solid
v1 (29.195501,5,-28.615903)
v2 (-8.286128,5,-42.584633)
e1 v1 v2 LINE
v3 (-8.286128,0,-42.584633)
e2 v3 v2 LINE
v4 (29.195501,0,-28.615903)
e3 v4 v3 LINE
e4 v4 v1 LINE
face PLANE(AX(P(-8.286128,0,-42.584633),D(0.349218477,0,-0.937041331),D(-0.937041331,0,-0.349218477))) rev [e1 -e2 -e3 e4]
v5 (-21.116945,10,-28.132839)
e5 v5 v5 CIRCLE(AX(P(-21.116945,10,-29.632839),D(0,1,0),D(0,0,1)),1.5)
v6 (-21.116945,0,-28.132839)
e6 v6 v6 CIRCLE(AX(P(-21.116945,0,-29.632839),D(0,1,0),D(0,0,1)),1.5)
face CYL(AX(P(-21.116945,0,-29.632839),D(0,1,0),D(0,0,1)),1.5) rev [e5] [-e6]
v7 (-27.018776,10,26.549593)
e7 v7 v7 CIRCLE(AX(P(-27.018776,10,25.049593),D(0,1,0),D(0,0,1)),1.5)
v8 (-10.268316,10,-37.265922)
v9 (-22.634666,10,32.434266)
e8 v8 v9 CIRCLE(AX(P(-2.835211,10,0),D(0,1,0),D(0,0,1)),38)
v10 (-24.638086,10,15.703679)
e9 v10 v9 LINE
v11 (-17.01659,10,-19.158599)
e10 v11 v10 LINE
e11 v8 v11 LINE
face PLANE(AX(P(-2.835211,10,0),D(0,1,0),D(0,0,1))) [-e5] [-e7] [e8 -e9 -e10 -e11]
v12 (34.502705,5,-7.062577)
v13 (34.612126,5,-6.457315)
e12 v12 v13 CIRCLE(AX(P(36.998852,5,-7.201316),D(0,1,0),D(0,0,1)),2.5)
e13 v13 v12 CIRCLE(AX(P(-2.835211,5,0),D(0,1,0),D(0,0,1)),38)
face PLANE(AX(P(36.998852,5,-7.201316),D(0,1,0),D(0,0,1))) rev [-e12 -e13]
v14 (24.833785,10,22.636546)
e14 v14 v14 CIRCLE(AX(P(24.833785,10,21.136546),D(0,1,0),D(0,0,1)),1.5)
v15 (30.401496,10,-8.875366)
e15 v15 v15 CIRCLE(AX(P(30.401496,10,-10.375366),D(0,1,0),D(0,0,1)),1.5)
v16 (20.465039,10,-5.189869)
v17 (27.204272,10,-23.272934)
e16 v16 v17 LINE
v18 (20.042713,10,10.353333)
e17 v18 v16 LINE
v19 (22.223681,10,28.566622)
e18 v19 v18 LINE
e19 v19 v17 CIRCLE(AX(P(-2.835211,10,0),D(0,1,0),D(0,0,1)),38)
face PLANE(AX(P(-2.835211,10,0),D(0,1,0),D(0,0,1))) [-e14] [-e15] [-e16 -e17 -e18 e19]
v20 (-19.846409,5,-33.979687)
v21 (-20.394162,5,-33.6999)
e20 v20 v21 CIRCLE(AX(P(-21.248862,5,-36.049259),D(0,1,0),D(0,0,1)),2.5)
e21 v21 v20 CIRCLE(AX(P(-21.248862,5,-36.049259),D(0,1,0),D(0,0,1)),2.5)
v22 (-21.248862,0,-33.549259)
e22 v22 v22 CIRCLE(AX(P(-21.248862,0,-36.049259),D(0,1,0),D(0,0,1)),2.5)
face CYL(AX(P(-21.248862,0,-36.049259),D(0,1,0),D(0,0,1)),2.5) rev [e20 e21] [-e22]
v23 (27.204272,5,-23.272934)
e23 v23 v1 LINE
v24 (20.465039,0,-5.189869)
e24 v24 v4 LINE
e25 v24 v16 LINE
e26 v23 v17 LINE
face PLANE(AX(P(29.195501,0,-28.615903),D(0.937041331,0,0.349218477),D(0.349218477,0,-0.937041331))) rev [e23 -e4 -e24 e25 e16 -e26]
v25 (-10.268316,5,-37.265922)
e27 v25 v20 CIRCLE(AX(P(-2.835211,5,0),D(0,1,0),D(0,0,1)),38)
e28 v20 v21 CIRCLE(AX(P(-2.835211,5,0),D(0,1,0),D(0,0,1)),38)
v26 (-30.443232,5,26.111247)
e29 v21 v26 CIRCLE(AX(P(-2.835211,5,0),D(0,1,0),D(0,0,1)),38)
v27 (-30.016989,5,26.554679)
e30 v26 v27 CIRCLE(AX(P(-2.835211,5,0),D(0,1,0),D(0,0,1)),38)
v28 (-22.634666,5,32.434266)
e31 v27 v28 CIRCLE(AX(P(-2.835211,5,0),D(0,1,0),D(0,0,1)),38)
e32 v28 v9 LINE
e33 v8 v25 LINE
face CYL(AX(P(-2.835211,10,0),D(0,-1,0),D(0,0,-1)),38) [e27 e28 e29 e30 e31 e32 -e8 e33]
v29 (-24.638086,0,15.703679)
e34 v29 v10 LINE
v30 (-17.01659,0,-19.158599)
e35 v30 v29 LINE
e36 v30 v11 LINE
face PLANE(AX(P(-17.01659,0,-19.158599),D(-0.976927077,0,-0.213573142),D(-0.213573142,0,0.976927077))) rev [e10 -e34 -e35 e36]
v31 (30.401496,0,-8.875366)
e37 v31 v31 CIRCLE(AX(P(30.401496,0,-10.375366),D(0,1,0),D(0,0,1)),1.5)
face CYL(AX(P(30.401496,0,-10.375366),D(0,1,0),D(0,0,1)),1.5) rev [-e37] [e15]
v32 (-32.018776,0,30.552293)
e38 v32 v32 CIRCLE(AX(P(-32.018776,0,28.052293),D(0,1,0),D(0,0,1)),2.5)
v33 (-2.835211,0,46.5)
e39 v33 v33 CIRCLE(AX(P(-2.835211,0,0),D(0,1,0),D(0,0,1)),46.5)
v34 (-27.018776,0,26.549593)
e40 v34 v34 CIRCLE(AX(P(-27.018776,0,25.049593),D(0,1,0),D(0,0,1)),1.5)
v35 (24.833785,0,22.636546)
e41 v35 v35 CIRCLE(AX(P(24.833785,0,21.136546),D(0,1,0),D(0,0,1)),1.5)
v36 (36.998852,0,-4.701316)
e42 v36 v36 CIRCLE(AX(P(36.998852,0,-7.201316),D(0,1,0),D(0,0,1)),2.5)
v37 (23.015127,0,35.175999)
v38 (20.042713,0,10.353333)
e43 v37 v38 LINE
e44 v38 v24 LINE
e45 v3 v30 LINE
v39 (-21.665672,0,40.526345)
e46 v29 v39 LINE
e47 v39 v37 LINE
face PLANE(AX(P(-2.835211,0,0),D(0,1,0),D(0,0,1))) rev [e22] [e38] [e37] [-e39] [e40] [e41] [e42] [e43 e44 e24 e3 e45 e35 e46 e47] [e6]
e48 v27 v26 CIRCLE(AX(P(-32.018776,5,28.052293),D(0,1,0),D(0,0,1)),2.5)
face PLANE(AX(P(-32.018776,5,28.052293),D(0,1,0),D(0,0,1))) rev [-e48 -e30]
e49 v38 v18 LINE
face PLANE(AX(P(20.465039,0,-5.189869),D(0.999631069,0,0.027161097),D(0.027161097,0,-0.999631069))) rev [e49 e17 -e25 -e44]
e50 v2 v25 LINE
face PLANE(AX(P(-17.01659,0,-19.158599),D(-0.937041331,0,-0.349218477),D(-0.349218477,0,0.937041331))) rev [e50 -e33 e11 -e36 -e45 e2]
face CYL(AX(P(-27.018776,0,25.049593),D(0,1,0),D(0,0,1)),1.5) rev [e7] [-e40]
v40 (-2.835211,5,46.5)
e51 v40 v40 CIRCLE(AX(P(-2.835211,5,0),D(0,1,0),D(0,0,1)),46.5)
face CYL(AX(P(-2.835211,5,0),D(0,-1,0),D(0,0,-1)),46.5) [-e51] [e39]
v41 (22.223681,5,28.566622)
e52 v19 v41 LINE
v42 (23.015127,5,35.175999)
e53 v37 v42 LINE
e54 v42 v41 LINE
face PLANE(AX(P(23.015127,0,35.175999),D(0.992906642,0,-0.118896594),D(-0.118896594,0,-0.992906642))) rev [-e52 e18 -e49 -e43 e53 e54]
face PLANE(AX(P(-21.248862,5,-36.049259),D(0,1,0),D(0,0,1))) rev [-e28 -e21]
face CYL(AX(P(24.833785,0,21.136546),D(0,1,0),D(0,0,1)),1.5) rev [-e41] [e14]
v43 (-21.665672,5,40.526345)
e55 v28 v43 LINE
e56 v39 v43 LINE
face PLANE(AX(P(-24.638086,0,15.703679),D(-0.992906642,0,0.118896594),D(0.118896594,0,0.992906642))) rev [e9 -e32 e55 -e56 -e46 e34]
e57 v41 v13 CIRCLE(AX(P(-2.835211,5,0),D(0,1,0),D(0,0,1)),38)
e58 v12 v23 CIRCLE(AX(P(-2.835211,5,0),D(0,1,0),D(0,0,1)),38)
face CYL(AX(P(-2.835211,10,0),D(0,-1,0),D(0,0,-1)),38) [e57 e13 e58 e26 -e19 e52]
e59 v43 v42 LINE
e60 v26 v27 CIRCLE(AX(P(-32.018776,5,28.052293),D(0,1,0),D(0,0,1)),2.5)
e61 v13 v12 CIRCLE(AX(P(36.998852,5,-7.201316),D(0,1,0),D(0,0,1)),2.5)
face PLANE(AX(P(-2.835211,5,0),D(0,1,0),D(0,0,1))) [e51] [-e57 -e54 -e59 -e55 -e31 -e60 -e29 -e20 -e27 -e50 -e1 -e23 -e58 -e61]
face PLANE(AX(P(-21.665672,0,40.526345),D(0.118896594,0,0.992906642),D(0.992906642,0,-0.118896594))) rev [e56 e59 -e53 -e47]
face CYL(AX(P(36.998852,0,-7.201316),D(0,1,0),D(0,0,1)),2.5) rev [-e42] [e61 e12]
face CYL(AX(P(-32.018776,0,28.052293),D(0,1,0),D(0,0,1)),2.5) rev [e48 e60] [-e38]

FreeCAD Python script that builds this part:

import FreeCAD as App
import Part
import Sketcher
from FreeCAD import Vector
Q = App.Units.Quantity


def add_polygon(sketch, points):
    """Adds a closed chain of lines whose ends are joined by coincident constraints."""
    first, n = sketch.GeometryCount, len(points)
    for a, b in zip(points, points[1:] + points[:1]):
        sketch.addGeometry(Part.LineSegment(App.Vector(*a, 0), App.Vector(*b, 0)), False)
    for i in range(n):
        sketch.addConstraint(Sketcher.Constraint("Coincident", first + i, 2, first + (i + 1) % n, 1))

doc = App.newDocument("Part")
body = doc.addObject("PartDesign::Body", "Body")

# Sketch on XZ plane
sketch1 = body.newObject("Sketcher::SketchObject", "Sketch")
sketch1.AttachmentSupport = (doc.getObject("XZ_Plane"), [""])
sketch1.MapMode = "FlatFace"
sketch1.addGeometry(Part.Circle(Vector(-2.835211, 0, 0), Vector(0, 0, 1), 46.5), False)
sketch1.addConstraint([
    Sketcher.Constraint("PointOnObject", 0, 3, -1),
    Sketcher.Constraint("Diameter", 0, Q("93 mm")),
    Sketcher.Constraint("DistanceX", 0, 3, -1, 1, Q("2.835211 mm")),
])
pad1 = body.newObject("PartDesign::Pad", "Pad")
pad1.Profile = sketch1
pad1.Length = 5
pad1.Reversed = True

# Sketch on XZ plane
sketch2 = body.newObject("Sketcher::SketchObject", "Sketch001")
sketch2.AttachmentSupport = (doc.getObject("XZ_Plane"), [""])
sketch2.MapMode = "FlatFace"
sketch2.AttachmentOffset = App.Placement(Vector(0, 0, -5), App.Rotation())
sketch2.addGeometry(Part.Circle(Vector(-2.835211, 0, 0), Vector(0, 0, 1), 38), False)
sketch2.addConstraint([
    Sketcher.Constraint("PointOnObject", 0, 3, -1),
    Sketcher.Constraint("Diameter", 0, Q("76 mm")),
    Sketcher.Constraint("DistanceX", 0, 3, -1, 1, Q("2.835211 mm")),
])
pad2 = body.newObject("PartDesign::Pad", "Pad001")
pad2.Profile = sketch2
pad2.Length = 5
pad2.Reversed = True

# Sketch on XZ plane
sketch3 = body.newObject("Sketcher::SketchObject", "Sketch002")
sketch3.AttachmentSupport = (doc.getObject("XZ_Plane"), [""])
sketch3.MapMode = "FlatFace"
sketch3.AttachmentOffset = App.Placement(Vector(0, 0, -5), App.Rotation())
sketch3.addGeometry([
    Part.Circle(Vector(-21.248862, -36.049259, 0), Vector(0, 0, 1), 2.5),
    Part.Circle(Vector(36.998852, -7.201316, 0), Vector(0, 0, 1), 2.5),
    Part.Circle(Vector(-32.018776, 28.052293, 0), Vector(0, 0, 1), 2.5),
], False)
sketch3.addConstraint([
    Sketcher.Constraint("Equal", 0, 1),
    Sketcher.Constraint("Equal", 1, 2),
    Sketcher.Constraint("Diameter", 0, Q("5 mm")),
    Sketcher.Constraint("DistanceX", 0, 3, -1, 1, Q("21.248862 mm")),
    Sketcher.Constraint("DistanceY", 0, 3, -1, 1, Q("36.049259 mm")),
    Sketcher.Constraint("DistanceY", 0, 3, 2, 3, Q("64.101552 mm")),
    Sketcher.Constraint("DistanceX", 2, 3, 1, 3, Q("69.017629 mm")),
    Sketcher.Constraint("DistanceY", 1, 3, 2, 3, Q("35.253609 mm")),
    Sketcher.Constraint("DistanceX", -1, 1, 1, 3, Q("36.998852 mm")),
])
pocket1 = body.newObject("PartDesign::Pocket", "Pocket")
pocket1.Profile = sketch3
pocket1.Type = "ThroughAll"
pocket1.Reversed = True

# Sketch on XZ plane
sketch4 = body.newObject("Sketcher::SketchObject", "Sketch003")
sketch4.AttachmentSupport = (doc.getObject("XZ_Plane"), [""])
sketch4.MapMode = "FlatFace"
sketch4.AttachmentOffset = App.Placement(Vector(0, 0, -10), App.Rotation())
sketch4.addGeometry([
    Part.Circle(Vector(-27.018776, 25.049593, 0), Vector(0, 0, 1), 1.5),
    Part.Circle(Vector(24.833785, 21.136546, 0), Vector(0, 0, 1), 1.5),
    Part.Circle(Vector(30.401496, -10.375366, 0), Vector(0, 0, 1), 1.5),
    Part.Circle(Vector(-21.116945, -29.632839, 0), Vector(0, 0, 1), 1.5),
], False)
sketch4.addConstraint([
    Sketcher.Constraint("Equal", 0, 1),
    Sketcher.Constraint("Equal", 1, 2),
    Sketcher.Constraint("Equal", 2, 3),
    Sketcher.Constraint("Diameter", 0, Q("3 mm")),
    Sketcher.Constraint("DistanceY", 3, 3, -1, 1, Q("29.632839 mm")),
    Sketcher.Constraint("DistanceX", 0, 3, 1, 3, Q("51.852561 mm")),
    Sketcher.Constraint("DistanceX", 1, 3, 2, 3, Q("5.567711 mm")),
    Sketcher.Constraint("DistanceY", 2, 3, 1, 3, Q("31.511912 mm")),
    Sketcher.Constraint("DistanceY", 2, 3, 0, 3, Q("35.424959 mm")),
    Sketcher.Constraint("DistanceX", 3, 3, 2, 3, Q("51.518441 mm")),
    Sketcher.Constraint("DistanceX", 0, 3, -1, 1, Q("27.018776 mm")),
    Sketcher.Constraint("DistanceY", -1, 1, 0, 3, Q("25.049593 mm")),
])
pocket2 = body.newObject("PartDesign::Pocket", "Pocket001")
pocket2.Profile = sketch4
pocket2.Type = "ThroughAll"
pocket2.Reversed = True

# Sketch on XZ plane
sketch5 = body.newObject("Sketcher::SketchObject", "Sketch004")
sketch5.AttachmentSupport = (doc.getObject("XZ_Plane"), [""])
sketch5.MapMode = "FlatFace"
sketch5.AttachmentOffset = App.Placement(Vector(0, 0, -10), App.Rotation())
add_polygon(sketch5, [(-8.286128, -42.584633), (-17.01659, -19.158599), (20.465039, -5.189869), (29.195501, -28.615903)])  # lines 0-3
sketch5.addConstraint([
    Sketcher.Constraint("Perpendicular", 0, 1),
    Sketcher.Constraint("Perpendicular", 1, 2),
    Sketcher.Constraint("Perpendicular", 2, 3),
    Sketcher.Constraint("Distance", 0, Q("25 mm")),
    Sketcher.Constraint("DistanceY", 0, 2, -1, 1, Q("19.158599 mm")),
    Sketcher.Constraint("DistanceX", -1, 1, 2, 2, Q("29.195501 mm")),
    Sketcher.Constraint("DistanceX", 0, 2, -1, 1, Q("17.01659 mm")),
    Sketcher.Constraint("DistanceX", -1, 1, 1, 2, Q("20.465039 mm")),
])
pocket3 = body.newObject("PartDesign::Pocket", "Pocket002")
pocket3.Profile = sketch5
pocket3.Type = "ThroughAll"
pocket3.Reversed = True

# Sketch on XZ plane
sketch6 = body.newObject("Sketcher::SketchObject", "Sketch005")
sketch6.AttachmentSupport = (doc.getObject("XZ_Plane"), [""])
sketch6.MapMode = "FlatFace"
sketch6.AttachmentOffset = App.Placement(Vector(0, 0, -10), App.Rotation())
add_polygon(sketch6, [(-24.638086, 15.703679), (-21.665672, 40.526345), (23.015127, 35.175999), (20.042713, 10.353333)])  # lines 0-3
sketch6.addConstraint([
    Sketcher.Constraint("Perpendicular", 0, 1),
    Sketcher.Constraint("Perpendicular", 1, 2),
    Sketcher.Constraint("Perpendicular", 2, 3),
    Sketcher.Constraint("Distance", 0, Q("25 mm")),
    Sketcher.Constraint("Distance", 1, Q("45 mm")),
    Sketcher.Constraint("DistanceY", -1, 1, 1, 2, Q("35.175999 mm")),
    Sketcher.Constraint("DistanceX", 0, 2, 1, 2, Q("44.680799 mm")),
    Sketcher.Constraint("DistanceX", 0, 2, -1, 1, Q("21.665672 mm")),
])
pocket4 = body.newObject("PartDesign::Pocket", "Pocket003")
pocket4.Profile = sketch6
pocket4.Type = "ThroughAll"
pocket4.Reversed = True

# Sketch on XZ plane
sketch7 = body.newObject("Sketcher::SketchObject", "Sketch006")
sketch7.AttachmentSupport = (doc.getObject("XZ_Plane"), [""])
sketch7.MapMode = "FlatFace"
sketch7.AttachmentOffset = App.Placement(Vector(0, 0, -10), App.Rotation())
add_polygon(sketch7, [(-17.01659, -19.158599), (-24.638086, 15.703679), (20.042713, 10.353333), (20.465039, -5.189869)])  # lines 0-3
sketch7.addConstraint([
    Sketcher.Constraint("Distance", 1, Q("45 mm")),
    Sketcher.Constraint("DistanceY", 3, 2, -1, 1, Q("19.158599 mm")),
    Sketcher.Constraint("DistanceX", 0, 2, 1, 2, Q("44.680799 mm")),
    Sketcher.Constraint("Distance", 0, Q("35.685651 mm")),
    Sketcher.Constraint("Distance", 2, Q("15.548939 mm")),
    Sketcher.Constraint("DistanceY", -1, 1, 0, 2, Q("15.703679 mm")),
    Sketcher.Constraint("DistanceX", -1, 1, 2, 2, Q("20.465039 mm")),
    Sketcher.Constraint("DistanceY", 2, 2, -1, 1, Q("5.189869 mm")),
])
pocket5 = body.newObject("PartDesign::Pocket", "Pocket004")
pocket5.Profile = sketch7
pocket5.Type = "ThroughAll"
pocket5.Reversed = True

doc.recompute()
